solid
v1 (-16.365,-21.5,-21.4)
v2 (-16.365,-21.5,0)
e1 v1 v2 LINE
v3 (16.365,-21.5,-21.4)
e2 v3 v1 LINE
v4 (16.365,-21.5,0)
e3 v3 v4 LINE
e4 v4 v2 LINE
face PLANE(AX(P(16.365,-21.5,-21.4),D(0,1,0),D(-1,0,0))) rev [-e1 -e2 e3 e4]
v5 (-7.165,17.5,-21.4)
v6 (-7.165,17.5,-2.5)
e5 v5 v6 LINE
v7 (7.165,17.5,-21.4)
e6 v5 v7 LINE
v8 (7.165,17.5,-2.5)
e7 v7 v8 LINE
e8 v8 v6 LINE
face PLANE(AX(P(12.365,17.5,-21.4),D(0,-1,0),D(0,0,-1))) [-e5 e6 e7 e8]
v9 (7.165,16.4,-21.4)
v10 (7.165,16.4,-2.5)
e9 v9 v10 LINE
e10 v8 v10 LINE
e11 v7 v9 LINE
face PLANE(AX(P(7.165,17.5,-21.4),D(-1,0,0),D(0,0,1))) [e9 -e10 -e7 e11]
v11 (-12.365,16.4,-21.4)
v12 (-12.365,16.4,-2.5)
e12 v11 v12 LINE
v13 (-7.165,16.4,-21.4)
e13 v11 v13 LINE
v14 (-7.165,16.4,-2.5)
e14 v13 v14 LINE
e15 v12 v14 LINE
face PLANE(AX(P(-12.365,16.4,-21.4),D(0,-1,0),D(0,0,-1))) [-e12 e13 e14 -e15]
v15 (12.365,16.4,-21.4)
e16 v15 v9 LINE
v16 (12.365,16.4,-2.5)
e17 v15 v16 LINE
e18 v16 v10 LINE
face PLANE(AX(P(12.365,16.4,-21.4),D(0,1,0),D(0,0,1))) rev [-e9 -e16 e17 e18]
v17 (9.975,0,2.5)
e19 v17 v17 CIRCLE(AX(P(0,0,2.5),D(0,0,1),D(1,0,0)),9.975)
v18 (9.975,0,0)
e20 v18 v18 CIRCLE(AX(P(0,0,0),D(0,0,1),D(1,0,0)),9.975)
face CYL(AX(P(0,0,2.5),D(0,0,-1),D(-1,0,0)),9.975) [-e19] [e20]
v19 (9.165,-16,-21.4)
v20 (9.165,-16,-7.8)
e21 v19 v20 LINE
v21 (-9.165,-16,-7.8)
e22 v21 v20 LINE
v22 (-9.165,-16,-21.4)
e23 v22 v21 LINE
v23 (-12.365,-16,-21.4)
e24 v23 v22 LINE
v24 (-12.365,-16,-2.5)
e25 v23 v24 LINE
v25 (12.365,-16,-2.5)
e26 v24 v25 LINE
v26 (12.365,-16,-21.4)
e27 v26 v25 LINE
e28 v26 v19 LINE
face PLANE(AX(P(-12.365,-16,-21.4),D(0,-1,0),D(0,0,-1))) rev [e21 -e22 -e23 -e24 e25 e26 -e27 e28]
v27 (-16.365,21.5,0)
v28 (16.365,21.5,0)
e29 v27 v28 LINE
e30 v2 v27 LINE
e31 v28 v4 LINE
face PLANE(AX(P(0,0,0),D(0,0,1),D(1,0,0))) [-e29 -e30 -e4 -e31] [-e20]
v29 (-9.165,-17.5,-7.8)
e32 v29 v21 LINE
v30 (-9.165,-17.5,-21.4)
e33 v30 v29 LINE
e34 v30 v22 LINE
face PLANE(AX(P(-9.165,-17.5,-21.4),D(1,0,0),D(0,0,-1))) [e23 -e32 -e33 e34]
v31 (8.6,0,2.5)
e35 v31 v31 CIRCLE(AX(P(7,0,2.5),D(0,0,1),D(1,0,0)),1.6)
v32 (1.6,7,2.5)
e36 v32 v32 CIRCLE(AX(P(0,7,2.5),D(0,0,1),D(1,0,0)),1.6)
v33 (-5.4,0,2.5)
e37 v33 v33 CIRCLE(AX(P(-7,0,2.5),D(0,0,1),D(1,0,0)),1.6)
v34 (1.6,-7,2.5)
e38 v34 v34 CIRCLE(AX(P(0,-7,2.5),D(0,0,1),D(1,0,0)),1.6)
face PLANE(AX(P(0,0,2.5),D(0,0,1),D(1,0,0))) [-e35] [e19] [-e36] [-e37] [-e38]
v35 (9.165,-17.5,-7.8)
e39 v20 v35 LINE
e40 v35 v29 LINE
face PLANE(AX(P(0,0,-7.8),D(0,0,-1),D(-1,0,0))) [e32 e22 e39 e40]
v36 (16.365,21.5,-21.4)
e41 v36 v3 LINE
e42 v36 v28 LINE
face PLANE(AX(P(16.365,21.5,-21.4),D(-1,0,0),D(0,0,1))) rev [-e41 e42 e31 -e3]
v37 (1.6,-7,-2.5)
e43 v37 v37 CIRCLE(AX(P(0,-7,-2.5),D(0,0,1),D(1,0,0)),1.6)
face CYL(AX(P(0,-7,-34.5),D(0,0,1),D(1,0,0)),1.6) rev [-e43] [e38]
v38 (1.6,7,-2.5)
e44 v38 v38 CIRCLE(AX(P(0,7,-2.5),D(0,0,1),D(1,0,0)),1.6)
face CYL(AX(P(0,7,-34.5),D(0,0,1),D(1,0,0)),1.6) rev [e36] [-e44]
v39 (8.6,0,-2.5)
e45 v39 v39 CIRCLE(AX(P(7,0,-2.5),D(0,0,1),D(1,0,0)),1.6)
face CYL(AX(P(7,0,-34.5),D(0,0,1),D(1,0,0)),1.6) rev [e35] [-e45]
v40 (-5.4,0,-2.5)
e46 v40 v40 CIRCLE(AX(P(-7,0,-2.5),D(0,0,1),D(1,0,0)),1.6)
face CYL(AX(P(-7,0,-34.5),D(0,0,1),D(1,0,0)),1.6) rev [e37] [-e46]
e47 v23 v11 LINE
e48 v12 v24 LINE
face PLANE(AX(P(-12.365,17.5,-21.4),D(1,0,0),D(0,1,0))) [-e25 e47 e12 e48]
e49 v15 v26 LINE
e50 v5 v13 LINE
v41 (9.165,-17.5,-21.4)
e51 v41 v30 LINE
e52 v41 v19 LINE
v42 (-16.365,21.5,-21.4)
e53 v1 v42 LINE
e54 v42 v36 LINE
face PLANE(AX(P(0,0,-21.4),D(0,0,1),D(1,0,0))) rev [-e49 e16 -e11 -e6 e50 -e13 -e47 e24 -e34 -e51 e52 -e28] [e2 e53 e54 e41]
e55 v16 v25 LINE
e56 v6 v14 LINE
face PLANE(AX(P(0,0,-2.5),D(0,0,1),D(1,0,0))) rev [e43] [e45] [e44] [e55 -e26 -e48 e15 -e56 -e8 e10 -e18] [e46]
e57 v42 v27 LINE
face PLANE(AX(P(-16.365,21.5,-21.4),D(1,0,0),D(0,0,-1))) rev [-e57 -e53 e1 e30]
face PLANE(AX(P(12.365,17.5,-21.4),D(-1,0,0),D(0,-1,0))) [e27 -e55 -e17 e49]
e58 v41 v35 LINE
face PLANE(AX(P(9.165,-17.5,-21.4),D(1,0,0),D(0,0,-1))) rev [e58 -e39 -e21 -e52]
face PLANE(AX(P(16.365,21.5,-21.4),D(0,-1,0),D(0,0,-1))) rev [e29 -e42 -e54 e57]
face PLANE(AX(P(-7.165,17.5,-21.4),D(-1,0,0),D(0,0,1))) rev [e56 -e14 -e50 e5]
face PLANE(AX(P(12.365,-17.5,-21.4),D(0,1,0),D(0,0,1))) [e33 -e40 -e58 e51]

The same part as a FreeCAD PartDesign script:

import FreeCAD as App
import Part
import Sketcher
from FreeCAD import Vector
Q = App.Units.Quantity

doc = App.newDocument("Part")
params = doc.addObject("Spreadsheet::Sheet", "Params")
for row, (alias, value) in enumerate([
    ("sketch1_diameter", "19.95 mm"),
    ("pad1_length", "2.5 mm"),
    ("sketch2_height", "35 mm"),
    ("sketch2_width", "24.73 mm"),
    ("pad2_length", "2.5 mm"),
    ("sketch3_height", "43 mm"),
    ("sketch3_height2", "35 mm"),
    ("sketch3_width", "32.73 mm"),
    ("pad3_length", "21.4 mm"),
    ("sketch4_width", "5.2 mm"),
    ("sketch4_width2", "3.2 mm"),
    ("sketch4_height", "1.1 mm"),
    ("sketch4_height2", "1.5 mm"),
    ("pad4_length", "18.9 mm"),
    ("sketch5_height", "1.5 mm"),
    ("sketch5_width", "18.33 mm"),
    ("pad5_length", "5.3 mm"),
    ("sketch6_diameter", "3.2 mm"),
    ("pocket1_length", "37 mm"),
], start=1):
    params.set(f"A{row}", alias)
    params.set(f"B{row}", "=" + value)
    params.setAlias(f"B{row}", alias)

body = doc.addObject("PartDesign::Body", "Body")

# Sketch on XY plane
sketch1 = body.newObject("Sketcher::SketchObject", "Sketch")
sketch1.AttachmentSupport = (doc.getObject("XY_Plane"), [""])
sketch1.MapMode = "FlatFace"
sketch1.addGeometry(Part.Circle(Vector(0, 0, 0), Vector(0, 0, 1), 10), False)
sketch1.addConstraint([
    Sketcher.Constraint("Coincident", 0, 3, -1, 1),
    Sketcher.Constraint("Diameter", 0, Q("19.95 mm")),
])
sketch1.setExpression("Constraints[1]", "Params.sketch1_diameter")
pad1 = body.newObject("PartDesign::Pad", "Pad")
pad1.Profile = sketch1
pad1.setExpression("Length", "Params.pad1_length")

# Sketch on XY plane
sketch2 = body.newObject("Sketcher::SketchObject", "Sketch001")
sketch2.AttachmentSupport = (doc.getObject("XY_Plane"), [""])
sketch2.MapMode = "FlatFace"
sketch2.addGeometry([
    Part.LineSegment(Vector(12, 18, 0), Vector(12, -18, 0)),
    Part.LineSegment(Vector(12, -18, 0), Vector(-12, -18, 0)),
    Part.LineSegment(Vector(-12, -18, 0), Vector(-12, 18, 0)),
    Part.LineSegment(Vector(-12, 18, 0), Vector(12, 18, 0)),
], False)
sketch2.addConstraint([
    Sketcher.Constraint("Coincident", 0, 2, 1, 1),
    Sketcher.Constraint("Coincident", 1, 2, 2, 1),
    Sketcher.Constraint("Coincident", 2, 2, 3, 1),
    Sketcher.Constraint("Coincident", 3, 2, 0, 1),
    Sketcher.Constraint("Vertical", 0),
    Sketcher.Constraint("Horizontal", 1),
    Sketcher.Constraint("Vertical", 2),
    Sketcher.Constraint("Horizontal", 3),
    Sketcher.Constraint("Symmetric", 0, 2, 2, 2, -1, 1),
    Sketcher.Constraint("DistanceY", 0, 2, 0, 1, Q("35 mm")),
    Sketcher.Constraint("DistanceX", 1, 2, 1, 1, Q("24.73 mm")),
])
sketch2.setExpression("Constraints[9]", "Params.sketch2_height")
sketch2.setExpression("Constraints[10]", "Params.sketch2_width")
pad2 = body.newObject("PartDesign::Pad", "Pad001")
pad2.Profile = sketch2
pad2.setExpression("Length", "Params.pad2_length")
pad2.Reversed = True

# Sketch on XY plane
sketch3 = body.newObject("Sketcher::SketchObject", "Sketch002")
sketch3.AttachmentSupport = (doc.getObject("XY_Plane"), [""])
sketch3.MapMode = "FlatFace"
sketch3.addGeometry([
    Part.LineSegment(Vector(16, 22, 0), Vector(16, -22, 0)),  # 0
    Part.LineSegment(Vector(16, -22, 0), Vector(-16, -22, 0)),  # 1
    Part.LineSegment(Vector(-16, -22, 0), Vector(-16, 22, 0)),  # 2
    Part.LineSegment(Vector(-16, 22, 0), Vector(16, 22, 0)),  # 3
    Part.LineSegment(Vector(-12, -18, 0), Vector(12, -18, 0)),  # 4
    Part.LineSegment(Vector(12, -18, 0), Vector(12, 18, 0)),  # 5
    Part.LineSegment(Vector(12, 18, 0), Vector(-12, 18, 0)),  # 6
    Part.LineSegment(Vector(-12, 18, 0), Vector(-12, -18, 0)),  # 7
], False)
sketch3.addConstraint([
    Sketcher.Constraint("Coincident", 0, 2, 1, 1),
    Sketcher.Constraint("Coincident", 1, 2, 2, 1),
    Sketcher.Constraint("Coincident", 2, 2, 3, 1),
    Sketcher.Constraint("Coincident", 3, 2, 0, 1),
    Sketcher.Constraint("Coincident", 4, 2, 5, 1),
    Sketcher.Constraint("Coincident", 5, 2, 6, 1),
    Sketcher.Constraint("Coincident", 6, 2, 7, 1),
    Sketcher.Constraint("Coincident", 7, 2, 4, 1),
    Sketcher.Constraint("Vertical", 0),
    Sketcher.Constraint("Horizontal", 1),
    Sketcher.Constraint("Vertical", 2),
    Sketcher.Constraint("Horizontal", 3),
    Sketcher.Constraint("Horizontal", 4),
    Sketcher.Constraint("Vertical", 5),
    Sketcher.Constraint("Horizontal", 6),
    Sketcher.Constraint("Vertical", 7),
    Sketcher.Constraint("Symmetric", 0, 2, 2, 2, -1, 1),
    Sketcher.Constraint("Symmetric", 4, 2, 6, 2, -1, 1),
    Sketcher.Constraint("DistanceY", 0, 2, 0, 1, Q("43 mm")),
    Sketcher.Constraint("DistanceY", 5, 1, 5, 2, Q("35 mm")),
    Sketcher.Constraint("DistanceX", 4, 2, 0, 2, Q("4 mm")),
    Sketcher.Constraint("DistanceX", 1, 2, 1, 1, Q("32.73 mm")),
])
sketch3.setExpression("Constraints[18]", "Params.sketch3_height")
sketch3.setExpression("Constraints[19]", "Params.sketch3_height2")
sketch3.setExpression("Constraints[21]", "Params.sketch3_width")
pad3 = body.newObject("PartDesign::Pad", "Pad002")
pad3.Profile = sketch3
pad3.setExpression("Length", "Params.pad3_length")
pad3.Reversed = True

# Sketch on XY plane
sketch4 = body.newObject("Sketcher::SketchObject", "Sketch003")
sketch4.AttachmentSupport = (doc.getObject("XY_Plane"), [""])
sketch4.MapMode = "FlatFace"
sketch4.AttachmentOffset = App.Placement(Vector(0, 0, -2.5), App.Rotation())
sketch4.addGeometry([
    Part.LineSegment(Vector(-7.2, 17.5, 0), Vector(-7.2, 16.4, 0)),  # 0
    Part.LineSegment(Vector(-7.2, 16.4, 0), Vector(-12.4, 16.4, 0)),  # 1
    Part.LineSegment(Vector(-12.4, 16.4, 0), Vector(-12.4, 17.5, 0)),  # 2
    Part.LineSegment(Vector(-12.4, 17.5, 0), Vector(-7.2, 17.5, 0)),  # 3
    Part.LineSegment(Vector(12.4, 17.5, 0), Vector(12.4, 16.4, 0)),  # 4
    Part.LineSegment(Vector(12.4, 16.4, 0), Vector(7.2, 16.4, 0)),  # 5
    Part.LineSegment(Vector(7.2, 16.4, 0), Vector(7.2, 17.5, 0)),  # 6
    Part.LineSegment(Vector(7.2, 17.5, 0), Vector(12.4, 17.5, 0)),  # 7
    Part.LineSegment(Vector(-9.2, -16, 0), Vector(-9.2, -17.5, 0)),  # 8
    Part.LineSegment(Vector(-9.2, -17.5, 0), Vector(-12.4, -17.5, 0)),  # 9
    Part.LineSegment(Vector(-12.4, -17.5, 0), Vector(-12.4, -16, 0)),  # 10
    Part.LineSegment(Vector(-12.4, -16, 0), Vector(-9.2, -16, 0)),  # 11
    Part.LineSegment(Vector(12.4, -16, 0), Vector(12.4, -17.5, 0)),  # 12
    Part.LineSegment(Vector(12.4, -17.5, 0), Vector(9.2, -17.5, 0)),  # 13
    Part.LineSegment(Vector(9.2, -17.5, 0), Vector(9.2, -16, 0)),  # 14
    Part.LineSegment(Vector(9.2, -16, 0), Vector(12.4, -16, 0)),  # 15
], False)
sketch4.addConstraint([
    Sketcher.Constraint("Coincident", 0, 2, 1, 1),
    Sketcher.Constraint("Coincident", 1, 2, 2, 1),
    Sketcher.Constraint("Coincident", 2, 2, 3, 1),
    Sketcher.Constraint("Coincident", 3, 2, 0, 1),
    Sketcher.Constraint("Coincident", 4, 2, 5, 1),
    Sketcher.Constraint("Coincident", 5, 2, 6, 1),
    Sketcher.Constraint("Coincident", 6, 2, 7, 1),
    Sketcher.Constraint("Coincident", 7, 2, 4, 1),
    Sketcher.Constraint("Coincident", 8, 2, 9, 1),
    Sketcher.Constraint("Coincident", 9, 2, 10, 1),
    Sketcher.Constraint("Coincident", 10, 2, 11, 1),
    Sketcher.Constraint("Coincident", 11, 2, 8, 1),
    Sketcher.Constraint("Coincident", 12, 2, 13, 1),
    Sketcher.Constraint("Coincident", 13, 2, 14, 1),
    Sketcher.Constraint("Coincident", 14, 2, 15, 1),
    Sketcher.Constraint("Coincident", 15, 2, 12, 1),
    Sketcher.Constraint("Vertical", 0),
    Sketcher.Constraint("Horizontal", 1),
    Sketcher.Constraint("Vertical", 2),
    Sketcher.Constraint("Horizontal", 3),
    Sketcher.Constraint("Vertical", 4),
    Sketcher.Constraint("Horizontal", 5),
    Sketcher.Constraint("Vertical", 6),
    Sketcher.Constraint("Horizontal", 7),
    Sketcher.Constraint("Vertical", 8),
    Sketcher.Constraint("Horizontal", 9),
    Sketcher.Constraint("Vertical", 10),
    Sketcher.Constraint("Horizontal", 11),
    Sketcher.Constraint("Vertical", 12),
    Sketcher.Constraint("Horizontal", 13),
    Sketcher.Constraint("Vertical", 14),
    Sketcher.Constraint("Horizontal", 15),
    Sketcher.Constraint("Symmetric", 7, 2, 9, 2, -1, 1),
    Sketcher.Constraint("Symmetric", 2, 2, 12, 2, -1, 1),
    Sketcher.Constraint("Symmetric", 1, 2, 4, 2, -2),
    Sketcher.Constraint("Symmetric", 3, 2, 6, 2, -2),
    Sketcher.Constraint("Symmetric", 11, 2, 14, 2, -2),
    Sketcher.Constraint("DistanceX", 1, 2, 1, 1, Q("5.2 mm")),
    Sketcher.Constraint("DistanceX", 9, 2, 9, 1, Q("3.2 mm")),
    Sketcher.Constraint("DistanceY", 0, 2, 0, 1, Q("1.1 mm")),
    Sketcher.Constraint("DistanceY", 8, 2, 8, 1, Q("1.5 mm")),
    Sketcher.Constraint("DistanceY", 10, 2, -1, 1, Q("16 mm")),
    Sketcher.Constraint("DistanceX", 0, 2, 4, 2, Q("19.53 mm")),
])
sketch4.setExpression("Constraints[37]", "Params.sketch4_width")
sketch4.setExpression("Constraints[38]", "Params.sketch4_width2")
sketch4.setExpression("Constraints[39]", "Params.sketch4_height")
sketch4.setExpression("Constraints[40]", "Params.sketch4_height2")
pad4 = body.newObject("PartDesign::Pad", "Pad003")
pad4.Profile = sketch4
pad4.setExpression("Length", "Params.pad4_length")
pad4.Reversed = True

# Sketch on XY plane
sketch5 = body.newObject("Sketcher::SketchObject", "Sketch004")
sketch5.AttachmentSupport = (doc.getObject("XY_Plane"), [""])
sketch5.MapMode = "FlatFace"
sketch5.AttachmentOffset = App.Placement(Vector(0, 0, -2.5), App.Rotation())
sketch5.addGeometry([
    Part.LineSegment(Vector(9.2, -16, 0), Vector(9.2, -17.5, 0)),
    Part.LineSegment(Vector(9.2, -17.5, 0), Vector(-9.2, -17.5, 0)),
    Part.LineSegment(Vector(-9.2, -17.5, 0), Vector(-9.2, -16, 0)),
    Part.LineSegment(Vector(-9.2, -16, 0), Vector(9.2, -16, 0)),
], False)
sketch5.addConstraint([
    Sketcher.Constraint("Coincident", 0, 2, 1, 1),
    Sketcher.Constraint("Coincident", 1, 2, 2, 1),
    Sketcher.Constraint("Coincident", 2, 2, 3, 1),
    Sketcher.Constraint("Coincident", 3, 2, 0, 1),
    Sketcher.Constraint("Vertical", 0),
    Sketcher.Constraint("Horizontal", 1),
    Sketcher.Constraint("Vertical", 2),
    Sketcher.Constraint("Horizontal", 3),
    Sketcher.Constraint("DistanceY", 0, 2, 0, 1, Q("1.5 mm")),
    Sketcher.Constraint("DistanceY", 2, 2, -1, 1, Q("16 mm")),
    Sketcher.Constraint("DistanceX", 1, 2, 1, 1, Q("18.33 mm")),
    Sketcher.Constraint("DistanceX", -1, 1, 0, 2, Q("9.165 mm")),
])
sketch5.setExpression("Constraints[8]", "Params.sketch5_height")
sketch5.setExpression("Constraints[10]", "Params.sketch5_width")
pad5 = body.newObject("PartDesign::Pad", "Pad004")
pad5.Profile = sketch5
pad5.setExpression("Length", "Params.pad5_length")
pad5.Reversed = True

# Sketch on XY plane
sketch6 = body.newObject("Sketcher::SketchObject", "Sketch005")
sketch6.AttachmentSupport = (doc.getObject("XY_Plane"), [""])
sketch6.MapMode = "FlatFace"
sketch6.AttachmentOffset = App.Placement(Vector(0, 0, 2.5), App.Rotation())
sketch6.addGeometry([
    Part.Circle(Vector(7, 0, 0), Vector(0, 0, 1), 1.6),
    Part.Circle(Vector(0, -7, 0), Vector(0, 0, 1), 1.6),
    Part.Circle(Vector(-7, 0, 0), Vector(0, 0, 1), 1.6),
    Part.Circle(Vector(0, 7, 0), Vector(0, 0, 1), 1.6),
], False)
sketch6.addConstraint([
    Sketcher.Constraint("Equal", 0, 1),
    Sketcher.Constraint("Equal", 1, 2),
    Sketcher.Constraint("Equal", 2, 3),
    Sketcher.Constraint("Symmetric", 0, 3, 2, 3, -1, 1),
    Sketcher.Constraint("Symmetric", 1, 3, 3, 3, -1, 1),
    Sketcher.Constraint("PointOnObject", 0, 3, -1),
    Sketcher.Constraint("PointOnObject", 1, 3, -2),
    Sketcher.Constraint("Diameter", 0, Q("3.2 mm")),
    Sketcher.Constraint("DistanceX", -1, 1, 0, 3, Q("7 mm")),
    Sketcher.Constraint("DistanceY", 1, 3, -1, 1, Q("7 mm")),
])
sketch6.setExpression("Constraints[7]", "Params.sketch6_diameter")
pocket1 = body.newObject("PartDesign::Pocket", "Pocket")
pocket1.Profile = sketch6
pocket1.setExpression("Length", "Params.pocket1_length")

doc.recompute()
